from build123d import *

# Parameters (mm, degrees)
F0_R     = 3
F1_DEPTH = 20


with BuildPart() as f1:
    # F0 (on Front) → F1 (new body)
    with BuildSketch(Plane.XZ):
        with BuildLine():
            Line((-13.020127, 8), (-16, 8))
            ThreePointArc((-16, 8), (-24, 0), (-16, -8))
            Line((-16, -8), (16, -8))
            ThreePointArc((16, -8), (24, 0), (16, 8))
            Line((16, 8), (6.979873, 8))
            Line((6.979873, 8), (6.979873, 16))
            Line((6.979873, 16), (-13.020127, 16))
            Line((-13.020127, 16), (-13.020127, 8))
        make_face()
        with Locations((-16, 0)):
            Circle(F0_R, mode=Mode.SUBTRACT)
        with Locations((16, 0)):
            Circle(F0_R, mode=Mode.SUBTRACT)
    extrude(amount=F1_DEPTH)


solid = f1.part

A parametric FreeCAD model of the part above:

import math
import FreeCAD as App
import Part
import Sketcher

V = App.Vector

doc = App.newDocument("Part")
params = doc.addObject("Spreadsheet::Sheet", "Params")
for row, (alias, value) in enumerate([
    ("sketch1_diameter", "6 mm"),
    ("sketch1_radius", "8 mm"),
    ("sketch1_width", "32 mm"),
    ("sketch1_width2", "20 mm"),
    ("sketch1_height", "8 mm"),
    ("pad1_length", "20 mm"),
], start=1):
    params.set(f"A{row}", alias)
    params.set(f"B{row}", "=" + value)
    params.setAlias(f"B{row}", alias)

body = doc.addObject("PartDesign::Body", "Body")

sketch1 = body.newObject("Sketcher::SketchObject", "Sketch")
sketch1.AttachmentSupport = (doc.getObject("XZ_Plane"), [""])
sketch1.MapMode = "FlatFace"
sketch1.addGeometry([
    Part.LineSegment(V(-13.020127, 8, 0), V(-16, 8, 0)),
    Part.ArcOfCircle(Part.Circle(V(-16, 0, 0), V(0, 0, 1), 8), math.radians(90), math.radians(270)),
    Part.LineSegment(V(-16, -8, 0), V(16, -8, 0)),
    Part.ArcOfCircle(Part.Circle(V(16, 0, 0), V(0, 0, 1), 8), math.radians(-90), math.radians(90)),
    Part.LineSegment(V(16, 8, 0), V(6.979873, 8, 0)),
    Part.LineSegment(V(6.979873, 8, 0), V(6.979873, 16, 0)),
    Part.LineSegment(V(6.979873, 16, 0), V(-13.020127, 16, 0)),
    Part.LineSegment(V(-13.020127, 16, 0), V(-13.020127, 8, 0)),
    Part.Circle(V(-16, 0, 0), V(0, 0, 1), 3),
    Part.Circle(V(16, 0, 0), V(0, 0, 1), 3),
], False)
sketch1.addConstraint([
    Sketcher.Constraint("Tangent", 0, 2, 1, 1),
    Sketcher.Constraint("Tangent", 1, 2, 2, 1),
    Sketcher.Constraint("Tangent", 2, 2, 3, 1),
    Sketcher.Constraint("Tangent", 3, 2, 4, 1),
    Sketcher.Constraint("Coincident", 4, 2, 5, 1),
    Sketcher.Constraint("Coincident", 5, 2, 6, 1),
    Sketcher.Constraint("Coincident", 6, 2, 7, 1),
    Sketcher.Constraint("Coincident", 7, 2, 0, 1),
    Sketcher.Constraint("Horizontal", 0),
    Sketcher.Constraint("Horizontal", 2),
    Sketcher.Constraint("Horizontal", 4),
    Sketcher.Constraint("Vertical", 5),
    Sketcher.Constraint("Horizontal", 6),
    Sketcher.Constraint("Vertical", 7),
    Sketcher.Constraint("Coincident", 8, 3, 1, 3),
    Sketcher.Constraint("Coincident", 9, 3, 3, 3),
    Sketcher.Constraint("Equal", 1, 3),
    Sketcher.Constraint("Equal", 8, 9),
    Sketcher.Constraint("Symmetric", 1, 3, 3, 3, -1, 1),
    Sketcher.Constraint("Diameter", 8, 6.0),
    Sketcher.Constraint("Radius", 1, 8.0),
    Sketcher.Constraint("DistanceX", 2, 1, 2, 2, 32.0),
    Sketcher.Constraint("DistanceX", 6, 2, 6, 1, 20.0),
    Sketcher.Constraint("DistanceY", 5, 1, 5, 2, 8.0),
    Sketcher.Constraint("DistanceX", 0, 2, 0, 1, 2.979873),
])
sketch1.setExpression("Constraints[19]", "Params.sketch1_diameter")
sketch1.setExpression("Constraints[20]", "Params.sketch1_radius")
sketch1.setExpression("Constraints[21]", "Params.sketch1_width")
sketch1.setExpression("Constraints[22]", "Params.sketch1_width2")
sketch1.setExpression("Constraints[23]", "Params.sketch1_height")
pad1 = body.newObject("PartDesign::Pad", "Pad")
pad1.Profile = sketch1
pad1.setExpression("Length", "Params.pad1_length")

doc.recompute()
